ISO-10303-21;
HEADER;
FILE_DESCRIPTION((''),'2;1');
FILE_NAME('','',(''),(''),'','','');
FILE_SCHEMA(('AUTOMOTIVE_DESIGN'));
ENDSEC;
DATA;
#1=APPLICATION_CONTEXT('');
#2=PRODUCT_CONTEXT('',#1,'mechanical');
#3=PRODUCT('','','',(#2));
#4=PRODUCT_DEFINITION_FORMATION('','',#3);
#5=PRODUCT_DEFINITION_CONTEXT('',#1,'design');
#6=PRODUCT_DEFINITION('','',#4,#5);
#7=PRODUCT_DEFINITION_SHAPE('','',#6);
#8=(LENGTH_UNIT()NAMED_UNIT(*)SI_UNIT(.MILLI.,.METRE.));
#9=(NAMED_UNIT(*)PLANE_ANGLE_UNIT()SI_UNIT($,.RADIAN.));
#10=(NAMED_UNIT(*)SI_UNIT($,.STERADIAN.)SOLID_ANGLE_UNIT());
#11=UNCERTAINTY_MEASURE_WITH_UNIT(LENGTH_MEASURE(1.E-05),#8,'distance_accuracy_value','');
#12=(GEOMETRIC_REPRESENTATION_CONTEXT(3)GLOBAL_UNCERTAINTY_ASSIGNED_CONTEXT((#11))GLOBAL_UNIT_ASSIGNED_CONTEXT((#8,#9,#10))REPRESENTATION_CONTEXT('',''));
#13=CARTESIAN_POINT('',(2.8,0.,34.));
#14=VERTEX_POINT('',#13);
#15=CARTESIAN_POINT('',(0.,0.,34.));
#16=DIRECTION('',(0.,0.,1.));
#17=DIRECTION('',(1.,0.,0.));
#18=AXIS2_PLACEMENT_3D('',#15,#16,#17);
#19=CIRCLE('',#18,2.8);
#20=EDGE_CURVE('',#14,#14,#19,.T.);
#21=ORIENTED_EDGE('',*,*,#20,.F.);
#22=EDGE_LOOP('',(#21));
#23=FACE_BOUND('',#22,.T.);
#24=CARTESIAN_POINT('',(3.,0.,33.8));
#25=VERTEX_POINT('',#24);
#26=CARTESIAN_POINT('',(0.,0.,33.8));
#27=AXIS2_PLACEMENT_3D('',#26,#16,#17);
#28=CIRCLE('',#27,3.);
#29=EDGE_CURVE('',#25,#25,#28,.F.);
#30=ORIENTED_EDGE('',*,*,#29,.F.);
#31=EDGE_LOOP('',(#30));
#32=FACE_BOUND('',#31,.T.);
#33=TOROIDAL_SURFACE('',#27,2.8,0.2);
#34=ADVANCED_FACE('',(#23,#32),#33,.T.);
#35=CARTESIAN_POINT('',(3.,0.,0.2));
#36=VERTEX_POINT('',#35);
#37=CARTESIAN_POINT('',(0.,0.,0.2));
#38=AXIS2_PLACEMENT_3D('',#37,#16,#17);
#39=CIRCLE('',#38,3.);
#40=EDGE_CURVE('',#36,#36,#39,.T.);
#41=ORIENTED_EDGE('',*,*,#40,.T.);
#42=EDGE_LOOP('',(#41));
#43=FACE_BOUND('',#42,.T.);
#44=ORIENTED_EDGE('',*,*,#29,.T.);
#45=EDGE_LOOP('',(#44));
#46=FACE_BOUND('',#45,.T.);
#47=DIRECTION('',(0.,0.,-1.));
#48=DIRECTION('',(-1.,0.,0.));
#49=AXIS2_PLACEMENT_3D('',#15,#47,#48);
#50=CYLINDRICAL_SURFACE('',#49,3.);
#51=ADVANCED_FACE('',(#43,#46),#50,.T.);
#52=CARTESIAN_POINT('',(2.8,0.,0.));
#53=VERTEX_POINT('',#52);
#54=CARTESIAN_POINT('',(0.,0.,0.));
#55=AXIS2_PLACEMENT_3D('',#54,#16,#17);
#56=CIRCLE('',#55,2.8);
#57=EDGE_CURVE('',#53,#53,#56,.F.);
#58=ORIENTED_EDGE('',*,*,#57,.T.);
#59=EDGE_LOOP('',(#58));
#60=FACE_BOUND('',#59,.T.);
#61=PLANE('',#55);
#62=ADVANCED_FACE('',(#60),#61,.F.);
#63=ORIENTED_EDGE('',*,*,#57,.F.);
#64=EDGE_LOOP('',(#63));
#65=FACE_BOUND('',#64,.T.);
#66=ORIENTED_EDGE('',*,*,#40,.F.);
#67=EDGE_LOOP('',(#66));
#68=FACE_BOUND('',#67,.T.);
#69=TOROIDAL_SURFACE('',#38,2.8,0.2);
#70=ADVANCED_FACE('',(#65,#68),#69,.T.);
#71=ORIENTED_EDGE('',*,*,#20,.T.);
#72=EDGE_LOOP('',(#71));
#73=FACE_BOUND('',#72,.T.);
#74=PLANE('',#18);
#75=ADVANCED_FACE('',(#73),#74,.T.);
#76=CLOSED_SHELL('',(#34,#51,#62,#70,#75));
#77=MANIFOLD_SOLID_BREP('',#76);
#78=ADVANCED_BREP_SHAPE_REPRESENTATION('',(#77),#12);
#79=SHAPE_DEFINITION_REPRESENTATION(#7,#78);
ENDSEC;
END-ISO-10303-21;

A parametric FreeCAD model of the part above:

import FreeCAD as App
import Part
import Sketcher


def edges_at(feature, points):
    """Names of the edges that pass closest to the given points."""
    edges = feature.Shape.Edges
    near = lambda p: min(range(len(edges)), key=lambda i: edges[i].distToShape(Part.Vertex(*p))[0])
    return sorted({f"Edge{near(p) + 1}" for p in points})

doc = App.newDocument("Part")
params = doc.addObject("Spreadsheet::Sheet", "Params")
for row, (alias, value) in enumerate([
    ("sketch1_diameter", "6 mm"),
    ("pad1_length", "34 mm"),
    ("fillet_radius", "0.2 mm"),
], start=1):
    params.set(f"A{row}", alias)
    params.set(f"B{row}", "=" + value)
    params.setAlias(f"B{row}", alias)

body = doc.addObject("PartDesign::Body", "Body")

sketch1 = body.newObject("Sketcher::SketchObject", "Sketch")
sketch1.AttachmentSupport = (doc.getObject("XY_Plane"), [""])
sketch1.MapMode = "FlatFace"
sketch1.addGeometry(Part.Circle(App.Vector(0, 0, 0), App.Vector(0, 0, 1), 3), False)
sketch1.addConstraint([
    Sketcher.Constraint("Coincident", 0, 3, -1, 1),
    Sketcher.Constraint("Diameter", 0, 6.0),
])
sketch1.setExpression("Constraints[1]", "Params.sketch1_diameter")
pad1 = body.newObject("PartDesign::Pad", "Pad")
pad1.Profile = sketch1
pad1.setExpression("Length", "Params.pad1_length")
doc.recompute()

fillet = body.newObject("PartDesign::Fillet", "Fillet")
fillet.Base = (pad1, edges_at(pad1, [(-3, 0, 0), (-3, 0, 34)]))
fillet.setExpression("Radius", "Params.fillet_radius")

doc.recompute()
